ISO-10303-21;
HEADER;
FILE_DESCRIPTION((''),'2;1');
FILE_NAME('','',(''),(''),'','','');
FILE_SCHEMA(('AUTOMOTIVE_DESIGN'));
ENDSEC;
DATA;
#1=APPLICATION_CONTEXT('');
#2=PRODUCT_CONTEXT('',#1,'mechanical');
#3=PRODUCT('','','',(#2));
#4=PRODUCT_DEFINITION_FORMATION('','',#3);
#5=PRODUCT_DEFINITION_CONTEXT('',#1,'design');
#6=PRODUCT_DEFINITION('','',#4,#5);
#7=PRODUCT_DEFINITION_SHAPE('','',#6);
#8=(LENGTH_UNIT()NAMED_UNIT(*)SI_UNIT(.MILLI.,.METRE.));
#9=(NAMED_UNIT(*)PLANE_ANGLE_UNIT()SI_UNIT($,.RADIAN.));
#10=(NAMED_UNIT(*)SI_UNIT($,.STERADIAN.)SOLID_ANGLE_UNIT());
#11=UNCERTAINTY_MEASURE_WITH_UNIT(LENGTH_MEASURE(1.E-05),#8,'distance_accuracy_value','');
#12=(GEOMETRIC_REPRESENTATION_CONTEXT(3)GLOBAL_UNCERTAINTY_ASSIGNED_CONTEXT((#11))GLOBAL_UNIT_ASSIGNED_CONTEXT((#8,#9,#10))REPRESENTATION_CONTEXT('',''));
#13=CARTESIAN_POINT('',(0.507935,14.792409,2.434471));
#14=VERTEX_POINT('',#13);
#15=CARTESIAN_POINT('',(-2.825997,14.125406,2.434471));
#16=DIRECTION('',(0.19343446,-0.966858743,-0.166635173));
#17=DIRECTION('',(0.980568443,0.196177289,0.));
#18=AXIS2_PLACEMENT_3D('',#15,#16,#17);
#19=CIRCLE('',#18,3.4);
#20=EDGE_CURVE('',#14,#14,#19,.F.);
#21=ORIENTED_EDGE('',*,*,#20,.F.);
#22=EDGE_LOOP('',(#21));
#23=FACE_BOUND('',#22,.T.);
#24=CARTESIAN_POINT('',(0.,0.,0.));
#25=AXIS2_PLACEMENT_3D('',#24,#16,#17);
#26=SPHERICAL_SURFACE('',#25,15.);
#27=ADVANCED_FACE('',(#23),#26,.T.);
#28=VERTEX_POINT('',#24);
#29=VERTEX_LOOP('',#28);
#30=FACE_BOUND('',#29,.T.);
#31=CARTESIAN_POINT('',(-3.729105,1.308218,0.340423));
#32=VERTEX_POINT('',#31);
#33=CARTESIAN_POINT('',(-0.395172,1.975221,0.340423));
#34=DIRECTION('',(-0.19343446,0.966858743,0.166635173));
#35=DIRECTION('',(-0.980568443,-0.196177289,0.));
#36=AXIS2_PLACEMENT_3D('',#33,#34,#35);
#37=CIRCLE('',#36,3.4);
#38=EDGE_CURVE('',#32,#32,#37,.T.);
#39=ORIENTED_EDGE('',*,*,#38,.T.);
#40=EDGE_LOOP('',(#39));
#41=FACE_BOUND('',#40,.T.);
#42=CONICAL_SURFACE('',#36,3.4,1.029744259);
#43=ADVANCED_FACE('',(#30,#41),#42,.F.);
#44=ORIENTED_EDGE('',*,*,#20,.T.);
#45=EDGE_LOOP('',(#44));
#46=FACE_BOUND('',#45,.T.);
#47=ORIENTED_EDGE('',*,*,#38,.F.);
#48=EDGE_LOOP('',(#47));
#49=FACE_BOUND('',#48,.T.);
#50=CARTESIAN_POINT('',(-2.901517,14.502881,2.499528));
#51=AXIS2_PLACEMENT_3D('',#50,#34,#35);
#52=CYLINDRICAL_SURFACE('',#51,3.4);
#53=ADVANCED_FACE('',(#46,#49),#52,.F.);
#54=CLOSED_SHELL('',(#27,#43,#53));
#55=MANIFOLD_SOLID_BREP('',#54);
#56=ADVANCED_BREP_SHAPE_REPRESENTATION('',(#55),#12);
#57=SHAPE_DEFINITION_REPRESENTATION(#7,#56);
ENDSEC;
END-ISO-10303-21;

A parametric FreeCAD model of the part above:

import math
import FreeCAD as App
import Part
import Sketcher
from FreeCAD import Vector
Q = App.Units.Quantity

doc = App.newDocument("Part")
body = doc.addObject("PartDesign::Body", "Body")

sketch1 = doc.addObject("Sketcher::SketchObject", "Sketch")
body.addObject(sketch1)
sketch1.AttachmentSupport = (doc.XY_Plane, [""])
sketch1.MapMode = "FlatFace"
sketch1.addGeometry([
    Part.LineSegment(Vector(-1, -15, 0), Vector(1, 15, 0)),
    Part.ArcOfCircle(Part.Circle(Vector(0, 0, 0), Vector(0, 0, 1), 15), math.radians(87), math.radians(267)),
], False)
sketch1.addGeometry(Part.LineSegment(Vector(1, 15, 0), Vector(-1, -15, 0)), True)
sketch1.addConstraint([
    Sketcher.Constraint("Coincident", 0, 1, 1, 2),
    Sketcher.Constraint("Coincident", 1, 1, 0, 2),
    Sketcher.Constraint("Coincident", 1, 3, -1, 1),
    Sketcher.Constraint("Coincident", 2, 1, 1, 1),
    Sketcher.Constraint("Coincident", 2, 2, 0, 1),
    Sketcher.Constraint("Radius", 1, 15.0),
    Sketcher.Constraint("DistanceY", 0, 1, 1, 1, 29.970632),
    Sketcher.Constraint("DistanceX", 0, 1, -1, 1, 0.663556),
])
revolution = doc.addObject("PartDesign::Revolution", "Revolution")
body.addObject(revolution)
revolution.Profile = sketch1
revolution.ReferenceAxis = (sketch1, ["Axis0"])
revolution.Angle = 360

sketch2 = doc.addObject("Sketcher::SketchObject", "Sketch001")
body.addObject(sketch2)
sketch2.Placement = App.Placement(Vector(-2.901517, 14.502881, 2.499528), App.Rotation(Vector(-0.680275758, -0.254558791, 0.687331591), Vector(0.193434461, -0.966858743, -0.166635173), Vector(0.706971006, 0.019595747, 0.706971006), "ZXY"))
sketch2.addGeometry([
    Part.LineSegment(Vector(0, 15, 0), Vector(0, 0, 0)),
    Part.LineSegment(Vector(0, 0, 0), Vector(3.4, 0, 0)),
    Part.LineSegment(Vector(3.4, 0, 0), Vector(3.4, 13, 0)),
    Part.LineSegment(Vector(3.4, 13, 0), Vector(0, 15, 0)),
], False)
sketch2.addConstraint([
    Sketcher.Constraint("Coincident", 0, 2, 1, 1),
    Sketcher.Constraint("Coincident", 1, 2, 2, 1),
    Sketcher.Constraint("Coincident", 2, 2, 3, 1),
    Sketcher.Constraint("Coincident", 3, 2, 0, 1),
    Sketcher.Constraint("Vertical", 0),
    Sketcher.Constraint("Horizontal", 1),
    Sketcher.Constraint("Vertical", 2),
    Sketcher.Constraint("Coincident", 0, 2, -1, 1),
    Sketcher.Constraint("DistanceY", 0, 2, 0, 1, 15.0),
    Sketcher.Constraint("Angle", 3, Q("149 deg")),
    Sketcher.Constraint("DistanceX", 1, 1, 1, 2, 3.4),
])
groove = doc.addObject("PartDesign::Groove", "Groove")
body.addObject(groove)
groove.Profile = sketch2
groove.ReferenceAxis = (sketch2, ["V_Axis"])
groove.Angle = 360

doc.recompute()
